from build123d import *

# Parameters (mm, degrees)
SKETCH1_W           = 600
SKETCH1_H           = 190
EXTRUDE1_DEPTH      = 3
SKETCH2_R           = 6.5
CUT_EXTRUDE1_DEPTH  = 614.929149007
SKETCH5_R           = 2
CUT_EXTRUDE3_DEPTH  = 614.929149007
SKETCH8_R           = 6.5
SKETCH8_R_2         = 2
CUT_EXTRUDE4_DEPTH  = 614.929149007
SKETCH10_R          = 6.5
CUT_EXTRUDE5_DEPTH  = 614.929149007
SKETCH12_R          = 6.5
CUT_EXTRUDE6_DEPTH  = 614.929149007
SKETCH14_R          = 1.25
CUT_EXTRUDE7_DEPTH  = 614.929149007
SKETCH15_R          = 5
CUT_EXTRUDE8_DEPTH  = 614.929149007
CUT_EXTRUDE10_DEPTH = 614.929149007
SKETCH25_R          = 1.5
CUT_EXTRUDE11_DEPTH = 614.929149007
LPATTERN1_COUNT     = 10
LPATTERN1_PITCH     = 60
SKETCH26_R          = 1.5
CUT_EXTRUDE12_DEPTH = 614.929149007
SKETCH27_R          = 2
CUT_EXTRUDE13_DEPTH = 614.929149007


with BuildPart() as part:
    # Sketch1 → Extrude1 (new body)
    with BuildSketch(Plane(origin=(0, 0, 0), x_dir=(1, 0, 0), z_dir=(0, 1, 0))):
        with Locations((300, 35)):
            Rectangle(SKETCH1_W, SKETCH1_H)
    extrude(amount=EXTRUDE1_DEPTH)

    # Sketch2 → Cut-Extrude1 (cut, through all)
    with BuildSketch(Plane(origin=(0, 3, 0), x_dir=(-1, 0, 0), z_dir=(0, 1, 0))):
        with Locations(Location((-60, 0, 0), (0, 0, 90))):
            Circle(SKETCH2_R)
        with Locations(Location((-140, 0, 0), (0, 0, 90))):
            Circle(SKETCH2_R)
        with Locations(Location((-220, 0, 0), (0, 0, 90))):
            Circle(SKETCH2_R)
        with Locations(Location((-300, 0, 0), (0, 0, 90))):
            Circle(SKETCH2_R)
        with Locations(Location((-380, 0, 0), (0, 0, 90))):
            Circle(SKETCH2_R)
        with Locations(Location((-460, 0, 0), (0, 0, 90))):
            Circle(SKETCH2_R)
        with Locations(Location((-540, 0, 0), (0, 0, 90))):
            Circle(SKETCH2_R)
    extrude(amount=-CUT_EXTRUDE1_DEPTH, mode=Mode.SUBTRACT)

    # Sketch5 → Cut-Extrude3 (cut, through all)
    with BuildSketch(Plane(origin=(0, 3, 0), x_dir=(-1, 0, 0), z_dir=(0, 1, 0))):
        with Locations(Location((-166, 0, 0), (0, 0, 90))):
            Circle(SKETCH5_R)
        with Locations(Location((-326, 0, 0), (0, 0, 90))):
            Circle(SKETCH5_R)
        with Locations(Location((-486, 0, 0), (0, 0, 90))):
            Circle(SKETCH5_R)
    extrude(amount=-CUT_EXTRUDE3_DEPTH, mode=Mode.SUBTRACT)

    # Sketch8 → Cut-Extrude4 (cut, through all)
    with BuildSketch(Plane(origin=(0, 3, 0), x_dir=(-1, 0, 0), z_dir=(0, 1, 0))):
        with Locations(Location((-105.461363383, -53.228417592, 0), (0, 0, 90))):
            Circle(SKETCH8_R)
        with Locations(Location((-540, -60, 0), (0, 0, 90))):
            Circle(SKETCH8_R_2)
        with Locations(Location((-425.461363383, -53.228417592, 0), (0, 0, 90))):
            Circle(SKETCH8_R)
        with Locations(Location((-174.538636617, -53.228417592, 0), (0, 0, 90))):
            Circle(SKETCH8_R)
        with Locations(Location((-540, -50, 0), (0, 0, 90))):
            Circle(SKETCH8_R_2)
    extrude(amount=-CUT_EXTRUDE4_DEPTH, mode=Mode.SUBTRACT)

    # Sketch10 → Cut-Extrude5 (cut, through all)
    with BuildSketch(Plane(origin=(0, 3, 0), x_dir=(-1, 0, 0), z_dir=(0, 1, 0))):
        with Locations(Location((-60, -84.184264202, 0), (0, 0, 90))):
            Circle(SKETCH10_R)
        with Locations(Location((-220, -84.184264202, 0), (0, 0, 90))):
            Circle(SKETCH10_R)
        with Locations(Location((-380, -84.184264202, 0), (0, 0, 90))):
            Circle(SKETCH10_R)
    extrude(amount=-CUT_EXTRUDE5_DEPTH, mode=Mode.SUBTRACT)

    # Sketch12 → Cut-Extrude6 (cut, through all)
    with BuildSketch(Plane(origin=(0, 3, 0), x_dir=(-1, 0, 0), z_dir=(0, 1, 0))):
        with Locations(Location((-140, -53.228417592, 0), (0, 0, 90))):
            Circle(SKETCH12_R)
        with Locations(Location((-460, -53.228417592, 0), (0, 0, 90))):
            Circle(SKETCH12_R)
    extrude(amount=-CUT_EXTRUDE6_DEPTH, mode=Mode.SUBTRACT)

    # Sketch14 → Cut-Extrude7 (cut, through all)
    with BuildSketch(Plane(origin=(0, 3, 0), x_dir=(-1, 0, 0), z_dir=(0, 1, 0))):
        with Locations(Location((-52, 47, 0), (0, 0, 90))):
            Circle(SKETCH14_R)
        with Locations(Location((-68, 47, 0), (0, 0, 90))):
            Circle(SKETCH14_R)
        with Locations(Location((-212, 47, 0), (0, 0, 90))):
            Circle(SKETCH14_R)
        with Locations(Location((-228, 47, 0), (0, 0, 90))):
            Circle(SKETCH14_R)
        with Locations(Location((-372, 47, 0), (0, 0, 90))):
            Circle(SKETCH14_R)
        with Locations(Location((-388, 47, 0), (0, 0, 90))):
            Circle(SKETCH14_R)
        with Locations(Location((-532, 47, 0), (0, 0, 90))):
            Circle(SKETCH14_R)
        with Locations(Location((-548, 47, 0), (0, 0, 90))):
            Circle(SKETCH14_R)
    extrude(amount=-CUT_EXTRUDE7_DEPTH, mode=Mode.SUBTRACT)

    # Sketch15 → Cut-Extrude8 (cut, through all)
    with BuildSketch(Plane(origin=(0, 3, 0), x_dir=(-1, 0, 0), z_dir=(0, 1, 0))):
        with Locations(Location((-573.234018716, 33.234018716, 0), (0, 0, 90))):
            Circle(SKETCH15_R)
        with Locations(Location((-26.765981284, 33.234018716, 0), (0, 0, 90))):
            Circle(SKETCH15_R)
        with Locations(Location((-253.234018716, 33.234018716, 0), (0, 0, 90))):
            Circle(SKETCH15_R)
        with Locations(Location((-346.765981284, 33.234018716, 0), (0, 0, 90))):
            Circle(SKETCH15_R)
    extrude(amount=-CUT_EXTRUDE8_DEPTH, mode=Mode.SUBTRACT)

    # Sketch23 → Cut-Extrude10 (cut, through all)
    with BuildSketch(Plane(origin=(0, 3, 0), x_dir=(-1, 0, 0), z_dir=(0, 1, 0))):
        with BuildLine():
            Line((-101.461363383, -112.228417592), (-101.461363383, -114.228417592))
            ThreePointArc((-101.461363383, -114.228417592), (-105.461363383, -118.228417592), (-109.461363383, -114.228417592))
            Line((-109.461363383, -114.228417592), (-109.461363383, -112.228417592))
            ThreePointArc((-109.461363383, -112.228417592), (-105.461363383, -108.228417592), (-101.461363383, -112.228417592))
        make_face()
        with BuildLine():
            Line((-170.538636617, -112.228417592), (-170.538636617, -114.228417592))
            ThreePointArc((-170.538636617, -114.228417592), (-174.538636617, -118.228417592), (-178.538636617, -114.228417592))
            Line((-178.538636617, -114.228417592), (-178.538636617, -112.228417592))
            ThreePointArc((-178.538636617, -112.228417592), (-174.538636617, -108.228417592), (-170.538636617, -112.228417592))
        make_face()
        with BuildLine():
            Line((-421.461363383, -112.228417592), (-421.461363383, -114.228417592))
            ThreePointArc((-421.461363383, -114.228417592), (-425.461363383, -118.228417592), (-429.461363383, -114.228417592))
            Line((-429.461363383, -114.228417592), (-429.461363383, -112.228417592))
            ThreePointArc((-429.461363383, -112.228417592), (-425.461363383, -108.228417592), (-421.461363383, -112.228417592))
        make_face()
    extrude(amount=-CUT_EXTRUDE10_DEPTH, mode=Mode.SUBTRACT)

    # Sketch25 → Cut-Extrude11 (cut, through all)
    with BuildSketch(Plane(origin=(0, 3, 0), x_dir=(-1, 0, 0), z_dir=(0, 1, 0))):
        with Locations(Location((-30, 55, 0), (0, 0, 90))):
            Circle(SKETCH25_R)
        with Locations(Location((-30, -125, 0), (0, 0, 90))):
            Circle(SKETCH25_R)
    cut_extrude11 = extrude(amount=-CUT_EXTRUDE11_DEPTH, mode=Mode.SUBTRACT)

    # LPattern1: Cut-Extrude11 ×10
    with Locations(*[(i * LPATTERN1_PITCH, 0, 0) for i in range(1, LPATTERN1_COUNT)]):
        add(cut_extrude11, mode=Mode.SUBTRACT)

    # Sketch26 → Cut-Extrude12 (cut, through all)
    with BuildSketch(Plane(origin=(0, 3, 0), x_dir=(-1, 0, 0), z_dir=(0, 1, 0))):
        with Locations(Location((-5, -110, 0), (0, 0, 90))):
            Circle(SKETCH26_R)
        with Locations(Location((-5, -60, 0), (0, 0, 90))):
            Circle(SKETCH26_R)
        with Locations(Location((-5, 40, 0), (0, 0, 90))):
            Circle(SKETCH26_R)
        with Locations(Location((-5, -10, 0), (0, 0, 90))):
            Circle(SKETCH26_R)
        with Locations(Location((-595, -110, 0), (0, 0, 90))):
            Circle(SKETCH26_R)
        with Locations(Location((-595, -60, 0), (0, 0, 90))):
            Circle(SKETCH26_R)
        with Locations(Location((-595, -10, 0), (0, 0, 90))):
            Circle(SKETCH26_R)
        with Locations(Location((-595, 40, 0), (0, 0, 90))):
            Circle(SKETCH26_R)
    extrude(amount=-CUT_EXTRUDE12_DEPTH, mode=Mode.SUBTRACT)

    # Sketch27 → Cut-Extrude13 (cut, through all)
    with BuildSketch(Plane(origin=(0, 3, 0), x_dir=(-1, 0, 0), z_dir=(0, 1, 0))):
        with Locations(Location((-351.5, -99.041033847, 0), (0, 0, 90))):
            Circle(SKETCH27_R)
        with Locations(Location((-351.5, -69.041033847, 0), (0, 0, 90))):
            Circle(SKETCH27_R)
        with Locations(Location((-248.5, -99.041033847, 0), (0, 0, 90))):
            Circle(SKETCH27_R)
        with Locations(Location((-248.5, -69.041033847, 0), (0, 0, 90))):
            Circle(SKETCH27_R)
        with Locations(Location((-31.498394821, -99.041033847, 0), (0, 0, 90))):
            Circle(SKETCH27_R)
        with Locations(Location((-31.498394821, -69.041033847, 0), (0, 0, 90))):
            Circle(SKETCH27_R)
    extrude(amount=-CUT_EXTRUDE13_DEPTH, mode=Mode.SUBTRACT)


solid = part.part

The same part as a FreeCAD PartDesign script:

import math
import FreeCAD as App
import Part
import Sketcher

V = App.Vector

doc = App.newDocument("Part")
params = doc.addObject("Spreadsheet::Sheet", "Params")
for row, (alias, value) in enumerate([
    ("sketch1_width", "600 mm"),
    ("sketch1_height", "190 mm"),
    ("pad1_length", "3 mm"),
    ("sketch2_diameter", "13 mm"),
    ("sketch3_diameter", "4 mm"),
    ("sketch4_diameter", "13 mm"),
    ("sketch4_diameter2", "4 mm"),
    ("sketch5_diameter", "13 mm"),
    ("sketch6_diameter", "13 mm"),
    ("sketch7_diameter", "2.5 mm"),
    ("sketch8_diameter", "10 mm"),
    ("sketch9_radius", "4 mm"),
    ("sketch9_height", "2 mm"),
    ("sketch10_diameter", "3 mm"),
    ("linearpattern_pitch", "60 mm"),
    ("sketch11_diameter", "3 mm"),
    ("sketch12_diameter", "4 mm"),
], start=1):
    params.set(f"A{row}", alias)
    params.set(f"B{row}", "=" + value)
    params.setAlias(f"B{row}", alias)

body = doc.addObject("PartDesign::Body", "Body")

# Sketch on XZ plane
sketch1 = body.newObject("Sketcher::SketchObject", "Sketch")
sketch1.AttachmentSupport = (doc.getObject("XZ_Plane"), [""])
sketch1.MapMode = "FlatFace"
sketch1.addGeometry([
    Part.LineSegment(V(0, -130, 0), V(0, 60, 0)),
    Part.LineSegment(V(0, 60, 0), V(600, 60, 0)),
    Part.LineSegment(V(600, 60, 0), V(600, -130, 0)),
    Part.LineSegment(V(600, -130, 0), V(0, -130, 0)),
], False)
sketch1.addConstraint([
    Sketcher.Constraint("Coincident", 0, 2, 1, 1),
    Sketcher.Constraint("Coincident", 1, 2, 2, 1),
    Sketcher.Constraint("Coincident", 2, 2, 3, 1),
    Sketcher.Constraint("Coincident", 3, 2, 0, 1),
    Sketcher.Constraint("Vertical", 0),
    Sketcher.Constraint("Horizontal", 1),
    Sketcher.Constraint("Vertical", 2),
    Sketcher.Constraint("Horizontal", 3),
    Sketcher.Constraint("PointOnObject", 0, 2, -2),
    Sketcher.Constraint("DistanceX", 1, 1, 1, 2, 600.0),
    Sketcher.Constraint("DistanceY", 0, 1, 0, 2, 190.0),
    Sketcher.Constraint("DistanceY", -1, 1, 0, 2, 60.0),
])
sketch1.setExpression("Constraints[9]", "Params.sketch1_width")
sketch1.setExpression("Constraints[10]", "Params.sketch1_height")
pad1 = body.newObject("PartDesign::Pad", "Pad")
pad1.Profile = sketch1
pad1.setExpression("Length", "Params.pad1_length")
pad1.Reversed = True

# Sketch on XZ plane
sketch2 = body.newObject("Sketcher::SketchObject", "Sketch001")
sketch2.AttachmentSupport = (doc.getObject("XZ_Plane"), [""])
sketch2.MapMode = "FlatFace"
sketch2.AttachmentOffset = App.Placement(V(0, 0, -3), App.Rotation())
sketch2.addGeometry([
    Part.Circle(V(60, 0, 0), V(0, 0, 1), 6),  # 0
    Part.Circle(V(140, 0, 0), V(0, 0, 1), 6),  # 1
    Part.Circle(V(220, 0, 0), V(0, 0, 1), 6),  # 2
    Part.Circle(V(300, 0, 0), V(0, 0, 1), 6),  # 3
    Part.Circle(V(380, 0, 0), V(0, 0, 1), 6),  # 4
    Part.Circle(V(460, 0, 0), V(0, 0, 1), 6),  # 5
    Part.Circle(V(540, 0, 0), V(0, 0, 1), 6),  # 6
], False)
sketch2.addConstraint([
    Sketcher.Constraint("Equal", 0, 1),
    Sketcher.Constraint("Equal", 1, 2),
    Sketcher.Constraint("Equal", 2, 3),
    Sketcher.Constraint("Equal", 3, 4),
    Sketcher.Constraint("Equal", 4, 5),
    Sketcher.Constraint("Equal", 5, 6),
    Sketcher.Constraint("PointOnObject", 0, 3, -1),
    Sketcher.Constraint("PointOnObject", 1, 3, -1),
    Sketcher.Constraint("PointOnObject", 2, 3, -1),
    Sketcher.Constraint("PointOnObject", 3, 3, -1),
    Sketcher.Constraint("PointOnObject", 4, 3, -1),
    Sketcher.Constraint("PointOnObject", 5, 3, -1),
    Sketcher.Constraint("PointOnObject", 6, 3, -1),
    Sketcher.Constraint("Diameter", 0, 13.0),
    Sketcher.Constraint("DistanceX", -1, 1, 0, 3, 60.0),
    Sketcher.Constraint("DistanceX", -1, 1, 1, 3, 140.0),
    Sketcher.Constraint("DistanceX", -1, 1, 2, 3, 220.0),
    Sketcher.Constraint("DistanceX", -1, 1, 3, 3, 300.0),
    Sketcher.Constraint("DistanceX", -1, 1, 4, 3, 380.0),
    Sketcher.Constraint("DistanceX", -1, 1, 5, 3, 460.0),
    Sketcher.Constraint("DistanceX", -1, 1, 6, 3, 540.0),
])
sketch2.setExpression("Constraints[13]", "Params.sketch2_diameter")
pocket1 = body.newObject("PartDesign::Pocket", "Pocket")
pocket1.Profile = sketch2
pocket1.Type = "ThroughAll"
pocket1.Reversed = True

# Sketch on XZ plane
sketch3 = body.newObject("Sketcher::SketchObject", "Sketch002")
sketch3.AttachmentSupport = (doc.getObject("XZ_Plane"), [""])
sketch3.MapMode = "FlatFace"
sketch3.AttachmentOffset = App.Placement(V(0, 0, -3), App.Rotation())
sketch3.addGeometry([
    Part.Circle(V(166, 0, 0), V(0, 0, 1), 2),
    Part.Circle(V(326, 0, 0), V(0, 0, 1), 2),
    Part.Circle(V(486, 0, 0), V(0, 0, 1), 2),
], False)
sketch3.addConstraint([
    Sketcher.Constraint("Equal", 0, 1),
    Sketcher.Constraint("Equal", 1, 2),
    Sketcher.Constraint("PointOnObject", 0, 3, -1),
    Sketcher.Constraint("PointOnObject", 1, 3, -1),
    Sketcher.Constraint("PointOnObject", 2, 3, -1),
    Sketcher.Constraint("Diameter", 0, 4.0),
    Sketcher.Constraint("DistanceX", -1, 1, 0, 3, 166.0),
    Sketcher.Constraint("DistanceX", -1, 1, 1, 3, 326.0),
    Sketcher.Constraint("DistanceX", -1, 1, 2, 3, 486.0),
])
sketch3.setExpression("Constraints[5]", "Params.sketch3_diameter")
pocket2 = body.newObject("PartDesign::Pocket", "Pocket001")
pocket2.Profile = sketch3
pocket2.Type = "ThroughAll"
pocket2.Reversed = True

# Sketch on XZ plane
sketch4 = body.newObject("Sketcher::SketchObject", "Sketch003")
sketch4.AttachmentSupport = (doc.getObject("XZ_Plane"), [""])
sketch4.MapMode = "FlatFace"
sketch4.AttachmentOffset = App.Placement(V(0, 0, -3), App.Rotation())
sketch4.addGeometry([
    Part.Circle(V(105.5, -53.2, 0), V(0, 0, 1), 6.5),  # 0
    Part.Circle(V(540, -60, 0), V(0, 0, 1), 2),  # 1
    Part.Circle(V(425.5, -53.2, 0), V(0, 0, 1), 6.5),  # 2
    Part.Circle(V(174.5, -53.2, 0), V(0, 0, 1), 6.5),  # 3
    Part.Circle(V(540, -50, 0), V(0, 0, 1), 2),  # 4
], False)
sketch4.addConstraint([
    Sketcher.Constraint("Equal", 0, 2),
    Sketcher.Constraint("Equal", 2, 3),
    Sketcher.Constraint("Equal", 1, 4),
    Sketcher.Constraint("Horizontal", 0, 3, 2, 3),
    Sketcher.Constraint("Horizontal", 2, 3, 3, 3),
    Sketcher.Constraint("Vertical", 1, 3, 4, 3),
    Sketcher.Constraint("Diameter", 0, 13.0),
    Sketcher.Constraint("Diameter", 1, 4.0),
    Sketcher.Constraint("DistanceX", -1, 1, 1, 3, 540.0),
    Sketcher.Constraint("DistanceY", 1, 3, -1, 1, 60.0),
    Sketcher.Constraint("DistanceY", 4, 3, -1, 1, 50.0),
    Sketcher.Constraint("DistanceX", 0, 3, 2, 3, 320.0),
    Sketcher.Constraint("DistanceX", -1, 1, 0, 3, 105.461363),
    Sketcher.Constraint("DistanceY", 0, 3, -1, 1, 53.228418),
    Sketcher.Constraint("DistanceX", -1, 1, 3, 3, 174.538637),
])
sketch4.setExpression("Constraints[6]", "Params.sketch4_diameter")
sketch4.setExpression("Constraints[7]", "Params.sketch4_diameter2")
pocket3 = body.newObject("PartDesign::Pocket", "Pocket002")
pocket3.Profile = sketch4
pocket3.Type = "ThroughAll"
pocket3.Reversed = True

# Sketch on XZ plane
sketch5 = body.newObject("Sketcher::SketchObject", "Sketch004")
sketch5.AttachmentSupport = (doc.getObject("XZ_Plane"), [""])
sketch5.MapMode = "FlatFace"
sketch5.AttachmentOffset = App.Placement(V(0, 0, -3), App.Rotation())
sketch5.addGeometry([
    Part.Circle(V(60, -84, 0), V(0, 0, 1), 6),
    Part.Circle(V(220, -84, 0), V(0, 0, 1), 6),
    Part.Circle(V(380, -84, 0), V(0, 0, 1), 6),
], False)
sketch5.addConstraint([
    Sketcher.Constraint("Equal", 0, 1),
    Sketcher.Constraint("Equal", 1, 2),
    Sketcher.Constraint("Horizontal", 0, 3, 1, 3),
    Sketcher.Constraint("Horizontal", 1, 3, 2, 3),
    Sketcher.Constraint("Diameter", 0, 13.0),
    Sketcher.Constraint("DistanceX", -1, 1, 0, 3, 60.0),
    Sketcher.Constraint("DistanceX", -1, 1, 1, 3, 220.0),
    Sketcher.Constraint("DistanceX", -1, 1, 2, 3, 380.0),
    Sketcher.Constraint("DistanceY", 0, 3, -1, 1, 84.184264),
])
sketch5.setExpression("Constraints[4]", "Params.sketch5_diameter")
pocket4 = body.newObject("PartDesign::Pocket", "Pocket003")
pocket4.Profile = sketch5
pocket4.Type = "ThroughAll"
pocket4.Reversed = True

# Sketch on XZ plane
sketch6 = body.newObject("Sketcher::SketchObject", "Sketch005")
sketch6.AttachmentSupport = (doc.getObject("XZ_Plane"), [""])
sketch6.MapMode = "FlatFace"
sketch6.AttachmentOffset = App.Placement(V(0, 0, -3), App.Rotation())
sketch6.addGeometry([
    Part.Circle(V(140, -53, 0), V(0, 0, 1), 6),
    Part.Circle(V(460, -53, 0), V(0, 0, 1), 6),
], False)
sketch6.addConstraint([
    Sketcher.Constraint("Equal", 0, 1),
    Sketcher.Constraint("Horizontal", 0, 3, 1, 3),
    Sketcher.Constraint("Diameter", 0, 13.0),
    Sketcher.Constraint("DistanceX", -1, 1, 0, 3, 140.0),
    Sketcher.Constraint("DistanceX", -1, 1, 1, 3, 460.0),
    Sketcher.Constraint("DistanceY", 0, 3, -1, 1, 53.228418),
])
sketch6.setExpression("Constraints[2]", "Params.sketch6_diameter")
pocket5 = body.newObject("PartDesign::Pocket", "Pocket004")
pocket5.Profile = sketch6
pocket5.Type = "ThroughAll"
pocket5.Reversed = True

# Sketch on XZ plane
sketch7 = body.newObject("Sketcher::SketchObject", "Sketch006")
sketch7.AttachmentSupport = (doc.getObject("XZ_Plane"), [""])
sketch7.MapMode = "FlatFace"
sketch7.AttachmentOffset = App.Placement(V(0, 0, -3), App.Rotation())
sketch7.addGeometry([
    Part.Circle(V(52, 47, 0), V(0, 0, 1), 1.2),  # 0
    Part.Circle(V(68, 47, 0), V(0, 0, 1), 1.2),  # 1
    Part.Circle(V(212, 47, 0), V(0, 0, 1), 1.2),  # 2
    Part.Circle(V(228, 47, 0), V(0, 0, 1), 1.2),  # 3
    Part.Circle(V(372, 47, 0), V(0, 0, 1), 1.2),  # 4
    Part.Circle(V(388, 47, 0), V(0, 0, 1), 1.2),  # 5
    Part.Circle(V(532, 47, 0), V(0, 0, 1), 1.2),  # 6
    Part.Circle(V(548, 47, 0), V(0, 0, 1), 1.2),  # 7
], False)
sketch7.addConstraint([
    Sketcher.Constraint("Equal", 0, 1),
    Sketcher.Constraint("Equal", 1, 2),
    Sketcher.Constraint("Equal", 2, 3),
    Sketcher.Constraint("Equal", 3, 4),
    Sketcher.Constraint("Equal", 4, 5),
    Sketcher.Constraint("Equal", 5, 6),
    Sketcher.Constraint("Equal", 6, 7),
    Sketcher.Constraint("Horizontal", 0, 3, 1, 3),
    Sketcher.Constraint("Horizontal", 1, 3, 2, 3),
    Sketcher.Constraint("Horizontal", 2, 3, 3, 3),
    Sketcher.Constraint("Horizontal", 3, 3, 4, 3),
    Sketcher.Constraint("Horizontal", 4, 3, 5, 3),
    Sketcher.Constraint("Horizontal", 5, 3, 6, 3),
    Sketcher.Constraint("Horizontal", 6, 3, 7, 3),
    Sketcher.Constraint("Diameter", 0, 2.5),
    Sketcher.Constraint("DistanceX", -1, 1, 0, 3, 52.0),
    Sketcher.Constraint("DistanceY", -1, 1, 0, 3, 47.0),
    Sketcher.Constraint("DistanceX", -1, 1, 1, 3, 68.0),
    Sketcher.Constraint("DistanceX", -1, 1, 2, 3, 212.0),
    Sketcher.Constraint("DistanceX", -1, 1, 3, 3, 228.0),
    Sketcher.Constraint("DistanceX", -1, 1, 4, 3, 372.0),
    Sketcher.Constraint("DistanceX", -1, 1, 5, 3, 388.0),
    Sketcher.Constraint("DistanceX", -1, 1, 6, 3, 532.0),
    Sketcher.Constraint("DistanceX", -1, 1, 7, 3, 548.0),
])
sketch7.setExpression("Constraints[14]", "Params.sketch7_diameter")
pocket6 = body.newObject("PartDesign::Pocket", "Pocket005")
pocket6.Profile = sketch7
pocket6.Type = "ThroughAll"
pocket6.Reversed = True

# Sketch on XZ plane
sketch8 = body.newObject("Sketcher::SketchObject", "Sketch007")
sketch8.AttachmentSupport = (doc.getObject("XZ_Plane"), [""])
sketch8.MapMode = "FlatFace"
sketch8.AttachmentOffset = App.Placement(V(0, 0, -3), App.Rotation())
sketch8.addGeometry([
    Part.Circle(V(573, 33, 0), V(0, 0, 1), 5),
    Part.Circle(V(27, 33, 0), V(0, 0, 1), 5),
    Part.Circle(V(253, 33, 0), V(0, 0, 1), 5),
    Part.Circle(V(347, 33, 0), V(0, 0, 1), 5),
], False)
sketch8.addConstraint([
    Sketcher.Constraint("Equal", 0, 1),
    Sketcher.Constraint("Equal", 1, 2),
    Sketcher.Constraint("Equal", 2, 3),
    Sketcher.Constraint("Horizontal", 0, 3, 1, 3),
    Sketcher.Constraint("Horizontal", 1, 3, 2, 3),
    Sketcher.Constraint("Horizontal", 2, 3, 3, 3),
    Sketcher.Constraint("Diameter", 0, 10.0),
    Sketcher.Constraint("DistanceX", 2, 3, 0, 3, 320.0),
    Sketcher.Constraint("DistanceX", 1, 3, 3, 3, 320.0),
    Sketcher.Constraint("DistanceX", -1, 1, 0, 3, 573.234019),
    Sketcher.Constraint("DistanceY", -1, 1, 0, 3, 33.234019),
    Sketcher.Constraint("DistanceX", -1, 1, 1, 3, 26.765981),
])
sketch8.setExpression("Constraints[6]", "Params.sketch8_diameter")
pocket7 = body.newObject("PartDesign::Pocket", "Pocket006")
pocket7.Profile = sketch8
pocket7.Type = "ThroughAll"
pocket7.Reversed = True

# Sketch on XZ plane
sketch9 = body.newObject("Sketcher::SketchObject", "Sketch008")
sketch9.AttachmentSupport = (doc.getObject("XZ_Plane"), [""])
sketch9.MapMode = "FlatFace"
sketch9.AttachmentOffset = App.Placement(V(0, 0, -3), App.Rotation())
sketch9.addGeometry([
    Part.LineSegment(V(101.5, -114.2, 0), V(101.5, -112.2, 0)),  # 0
    Part.ArcOfCircle(Part.Circle(V(105.5, -112.2, 0), V(0, 0, 1), 4), math.radians(0), math.radians(180)),  # 1
    Part.LineSegment(V(109.5, -112.2, 0), V(109.5, -114.2, 0)),  # 2
    Part.ArcOfCircle(Part.Circle(V(105.5, -114.2, 0), V(0, 0, 1), 4), math.radians(180), math.radians(360)),  # 3
    Part.LineSegment(V(170.5, -114.2, 0), V(170.5, -112.2, 0)),  # 4
    Part.ArcOfCircle(Part.Circle(V(174.5, -112.2, 0), V(0, 0, 1), 4), math.radians(0), math.radians(180)),  # 5
    Part.LineSegment(V(178.5, -112.2, 0), V(178.5, -114.2, 0)),  # 6
    Part.ArcOfCircle(Part.Circle(V(174.5, -114.2, 0), V(0, 0, 1), 4), math.radians(180), math.radians(360)),  # 7
    Part.LineSegment(V(421.5, -114.2, 0), V(421.5, -112.2, 0)),  # 8
    Part.ArcOfCircle(Part.Circle(V(425.5, -112.2, 0), V(0, 0, 1), 4), math.radians(0), math.radians(180)),  # 9
    Part.LineSegment(V(429.5, -112.2, 0), V(429.5, -114.2, 0)),  # 10
    Part.ArcOfCircle(Part.Circle(V(425.5, -114.2, 0), V(0, 0, 1), 4), math.radians(180), math.radians(360)),  # 11
], False)
sketch9.addConstraint([
    Sketcher.Constraint("Tangent", 0, 2, 1, 2),
    Sketcher.Constraint("Tangent", 1, 1, 2, 1),
    Sketcher.Constraint("Tangent", 2, 2, 3, 2),
    Sketcher.Constraint("Tangent", 3, 1, 0, 1),
    Sketcher.Constraint("Tangent", 4, 2, 5, 2),
    Sketcher.Constraint("Tangent", 5, 1, 6, 1),
    Sketcher.Constraint("Tangent", 6, 2, 7, 2),
    Sketcher.Constraint("Tangent", 7, 1, 4, 1),
    Sketcher.Constraint("Tangent", 8, 2, 9, 2),
    Sketcher.Constraint("Tangent", 9, 1, 10, 1),
    Sketcher.Constraint("Tangent", 10, 2, 11, 2),
    Sketcher.Constraint("Tangent", 11, 1, 8, 1),
    Sketcher.Constraint("Vertical", 0),
    Sketcher.Constraint("Vertical", 2),
    Sketcher.Constraint("Vertical", 4),
    Sketcher.Constraint("Vertical", 6),
    Sketcher.Constraint("Vertical", 8),
    Sketcher.Constraint("Vertical", 10),
    Sketcher.Constraint("Equal", 3, 5),
    Sketcher.Constraint("Equal", 7, 9),
    Sketcher.Constraint("Horizontal", 1, 3, 5, 3),
    Sketcher.Constraint("Horizontal", 3, 3, 7, 3),
    Sketcher.Constraint("Horizontal", 5, 3, 9, 3),
    Sketcher.Constraint("Horizontal", 7, 3, 11, 3),
    Sketcher.Constraint("Radius", 1, 4.0),
    Sketcher.Constraint("DistanceY", 0, 1, 0, 2, 2.0),
    Sketcher.Constraint("DistanceX", 1, 3, 9, 3, 320.0),
    Sketcher.Constraint("DistanceX", -1, 1, 1, 3, 105.461363),
    Sketcher.Constraint("DistanceY", 1, 3, -1, 1, 112.228418),
    Sketcher.Constraint("DistanceX", -1, 1, 5, 3, 174.538637),
])
sketch9.setExpression("Constraints[24]", "Params.sketch9_radius")
sketch9.setExpression("Constraints[25]", "Params.sketch9_height")
pocket8 = body.newObject("PartDesign::Pocket", "Pocket007")
pocket8.Profile = sketch9
pocket8.Type = "ThroughAll"
pocket8.Reversed = True

# Sketch on XZ plane
sketch10 = body.newObject("Sketcher::SketchObject", "Sketch009")
sketch10.AttachmentSupport = (doc.getObject("XZ_Plane"), [""])
sketch10.MapMode = "FlatFace"
sketch10.AttachmentOffset = App.Placement(V(0, 0, -3), App.Rotation())
sketch10.addGeometry([
    Part.Circle(V(30, 55, 0), V(0, 0, 1), 1.5),
    Part.Circle(V(30, -125, 0), V(0, 0, 1), 1.5),
], False)
sketch10.addConstraint([
    Sketcher.Constraint("Equal", 0, 1),
    Sketcher.Constraint("Vertical", 0, 3, 1, 3),
    Sketcher.Constraint("Diameter", 0, 3.0),
    Sketcher.Constraint("DistanceX", -1, 1, 0, 3, 30.0),
    Sketcher.Constraint("DistanceY", -1, 1, 0, 3, 55.0),
    Sketcher.Constraint("DistanceY", 1, 3, -1, 1, 125.0),
])
sketch10.setExpression("Constraints[2]", "Params.sketch10_diameter")
pocket9 = body.newObject("PartDesign::Pocket", "Pocket008")
pocket9.Profile = sketch10
pocket9.Type = "ThroughAll"
pocket9.Reversed = True
doc.recompute()

linearpattern = body.newObject("PartDesign::LinearPattern", "LinearPattern")
linearpattern.Originals = [pocket9]
linearpattern.Direction = (doc.getObject("X_Axis"), [""])
linearpattern.Mode = "offset"
linearpattern.setExpression("Offset", "Params.linearpattern_pitch")
linearpattern.Occurrences = 10
body.Tip = linearpattern

# Sketch on XZ plane
sketch11 = body.newObject("Sketcher::SketchObject", "Sketch010")
sketch11.AttachmentSupport = (doc.getObject("XZ_Plane"), [""])
sketch11.MapMode = "FlatFace"
sketch11.AttachmentOffset = App.Placement(V(0, 0, -3), App.Rotation())
sketch11.addGeometry([
    Part.Circle(V(5, -110, 0), V(0, 0, 1), 1.5),  # 0
    Part.Circle(V(5, -60, 0), V(0, 0, 1), 1.5),  # 1
    Part.Circle(V(5, 40, 0), V(0, 0, 1), 1.5),  # 2
    Part.Circle(V(5, -10, 0), V(0, 0, 1), 1.5),  # 3
    Part.Circle(V(595, -110, 0), V(0, 0, 1), 1.5),  # 4
    Part.Circle(V(595, -60, 0), V(0, 0, 1), 1.5),  # 5
    Part.Circle(V(595, -10, 0), V(0, 0, 1), 1.5),  # 6
    Part.Circle(V(595, 40, 0), V(0, 0, 1), 1.5),  # 7
], False)
sketch11.addConstraint([
    Sketcher.Constraint("Equal", 0, 1),
    Sketcher.Constraint("Equal", 1, 2),
    Sketcher.Constraint("Equal", 2, 3),
    Sketcher.Constraint("Equal", 3, 4),
    Sketcher.Constraint("Equal", 4, 5),
    Sketcher.Constraint("Equal", 5, 6),
    Sketcher.Constraint("Equal", 6, 7),
    Sketcher.Constraint("Horizontal", 0, 3, 4, 3),
    Sketcher.Constraint("Horizontal", 1, 3, 5, 3),
    Sketcher.Constraint("Horizontal", 3, 3, 6, 3),
    Sketcher.Constraint("Horizontal", 2, 3, 7, 3),
    Sketcher.Constraint("Vertical", 0, 3, 1, 3),
    Sketcher.Constraint("Vertical", 1, 3, 2, 3),
    Sketcher.Constraint("Vertical", 2, 3, 3, 3),
    Sketcher.Constraint("Vertical", 4, 3, 5, 3),
    Sketcher.Constraint("Vertical", 5, 3, 6, 3),
    Sketcher.Constraint("Vertical", 6, 3, 7, 3),
    Sketcher.Constraint("Diameter", 0, 3.0),
    Sketcher.Constraint("DistanceX", -1, 1, 0, 3, 5.0),
    Sketcher.Constraint("DistanceY", 0, 3, -1, 1, 110.0),
    Sketcher.Constraint("DistanceY", 1, 3, -1, 1, 60.0),
    Sketcher.Constraint("DistanceY", -1, 1, 2, 3, 40.0),
    Sketcher.Constraint("DistanceY", 3, 3, -1, 1, 10.0),
    Sketcher.Constraint("DistanceX", -1, 1, 4, 3, 595.0),
])
sketch11.setExpression("Constraints[17]", "Params.sketch11_diameter")
pocket10 = body.newObject("PartDesign::Pocket", "Pocket009")
pocket10.Profile = sketch11
pocket10.Type = "ThroughAll"
pocket10.Reversed = True

# Sketch on XZ plane
sketch12 = body.newObject("Sketcher::SketchObject", "Sketch011")
sketch12.AttachmentSupport = (doc.getObject("XZ_Plane"), [""])
sketch12.MapMode = "FlatFace"
sketch12.AttachmentOffset = App.Placement(V(0, 0, -3), App.Rotation())
sketch12.addGeometry([
    Part.Circle(V(351.5, -99, 0), V(0, 0, 1), 2),  # 0
    Part.Circle(V(351.5, -69, 0), V(0, 0, 1), 2),  # 1
    Part.Circle(V(248.5, -99, 0), V(0, 0, 1), 2),  # 2
    Part.Circle(V(248.5, -69, 0), V(0, 0, 1), 2),  # 3
    Part.Circle(V(31.5, -99, 0), V(0, 0, 1), 2),  # 4
    Part.Circle(V(31.5, -69, 0), V(0, 0, 1), 2),  # 5
], False)
sketch12.addConstraint([
    Sketcher.Constraint("Equal", 0, 1),
    Sketcher.Constraint("Equal", 1, 2),
    Sketcher.Constraint("Equal", 2, 3),
    Sketcher.Constraint("Equal", 3, 4),
    Sketcher.Constraint("Equal", 4, 5),
    Sketcher.Constraint("Horizontal", 0, 3, 2, 3),
    Sketcher.Constraint("Horizontal", 1, 3, 3, 3),
    Sketcher.Constraint("Horizontal", 2, 3, 4, 3),
    Sketcher.Constraint("Horizontal", 3, 3, 5, 3),
    Sketcher.Constraint("Vertical", 0, 3, 1, 3),
    Sketcher.Constraint("Vertical", 2, 3, 3, 3),
    Sketcher.Constraint("Vertical", 4, 3, 5, 3),
    Sketcher.Constraint("Diameter", 0, 4.0),
    Sketcher.Constraint("DistanceY", 0, 3, 1, 3, 30.0),
    Sketcher.Constraint("DistanceX", 2, 3, 0, 3, 103.0),
    Sketcher.Constraint("DistanceX", -1, 1, 0, 3, 351.5),
    Sketcher.Constraint("DistanceY", 0, 3, -1, 1, 99.041034),
    Sketcher.Constraint("DistanceX", -1, 1, 4, 3, 31.498395),
])
sketch12.setExpression("Constraints[12]", "Params.sketch12_diameter")
pocket11 = body.newObject("PartDesign::Pocket", "Pocket010")
pocket11.Profile = sketch12
pocket11.Type = "ThroughAll"
pocket11.Reversed = True

doc.recompute()
